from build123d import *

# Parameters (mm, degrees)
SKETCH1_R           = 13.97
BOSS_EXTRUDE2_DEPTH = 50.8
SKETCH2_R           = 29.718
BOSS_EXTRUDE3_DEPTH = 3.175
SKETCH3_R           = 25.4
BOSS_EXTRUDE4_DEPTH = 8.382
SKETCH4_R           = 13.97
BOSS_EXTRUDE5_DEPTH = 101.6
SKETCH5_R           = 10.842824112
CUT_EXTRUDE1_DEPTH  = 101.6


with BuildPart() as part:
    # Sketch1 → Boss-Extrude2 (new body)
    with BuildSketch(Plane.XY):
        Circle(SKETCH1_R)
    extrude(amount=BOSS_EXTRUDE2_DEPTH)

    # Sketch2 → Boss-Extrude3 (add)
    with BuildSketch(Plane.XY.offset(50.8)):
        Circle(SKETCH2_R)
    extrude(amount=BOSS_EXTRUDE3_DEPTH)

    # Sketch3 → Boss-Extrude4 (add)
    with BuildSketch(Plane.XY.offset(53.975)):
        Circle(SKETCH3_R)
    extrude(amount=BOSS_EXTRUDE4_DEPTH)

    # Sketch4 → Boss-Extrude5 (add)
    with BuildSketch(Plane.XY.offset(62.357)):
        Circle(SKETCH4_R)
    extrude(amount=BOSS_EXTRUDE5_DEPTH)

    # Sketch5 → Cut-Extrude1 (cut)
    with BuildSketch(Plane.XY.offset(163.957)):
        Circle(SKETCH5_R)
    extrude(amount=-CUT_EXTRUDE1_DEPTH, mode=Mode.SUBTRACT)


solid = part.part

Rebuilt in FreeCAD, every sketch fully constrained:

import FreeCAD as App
import Part
import Sketcher
from FreeCAD import Vector
Q = App.Units.Quantity

doc = App.newDocument("Part")
body = doc.addObject("PartDesign::Body", "Body")

# Sketch on XY plane
sketch1 = body.newObject("Sketcher::SketchObject", "Sketch")
sketch1.AttachmentSupport = (doc.getObject("XY_Plane"), [""])
sketch1.MapMode = "FlatFace"
sketch1.addGeometry(Part.Circle(Vector(0, 0, 0), Vector(0, 0, 1), 14), False)
sketch1.addConstraint(Sketcher.Constraint("Coincident", 0, 3, -1, 1))
sketch1.addConstraint(Sketcher.Constraint("Diameter", 0, Q("1.1 in")))
pad1 = body.newObject("PartDesign::Pad", "Pad")
pad1.Profile = sketch1
pad1.Length = Q("2 in")

# Sketch on XY plane
sketch2 = body.newObject("Sketcher::SketchObject", "Sketch001")
sketch2.AttachmentSupport = (doc.getObject("XY_Plane"), [""])
sketch2.MapMode = "FlatFace"
sketch2.AttachmentOffset = App.Placement(Vector(0, 0, 2 * 25.4), App.Rotation())
sketch2.addGeometry(Part.Circle(Vector(0, 0, 0), Vector(0, 0, 1), 30), False)
sketch2.addConstraint(Sketcher.Constraint("Coincident", 0, 3, -1, 1))
sketch2.addConstraint(Sketcher.Constraint("Diameter", 0, Q("2.34 in")))
pad2 = body.newObject("PartDesign::Pad", "Pad001")
pad2.Profile = sketch2
pad2.Length = Q("0.125 in")

# Sketch on XY plane
sketch3 = body.newObject("Sketcher::SketchObject", "Sketch002")
sketch3.AttachmentSupport = (doc.getObject("XY_Plane"), [""])
sketch3.MapMode = "FlatFace"
sketch3.AttachmentOffset = App.Placement(Vector(0, 0, 2.125 * 25.4), App.Rotation())
sketch3.addGeometry(Part.Circle(Vector(0, 0, 0), Vector(0, 0, 1), 25), False)
sketch3.addConstraint(Sketcher.Constraint("Coincident", 0, 3, -1, 1))
sketch3.addConstraint(Sketcher.Constraint("Diameter", 0, Q("2 in")))
pad3 = body.newObject("PartDesign::Pad", "Pad002")
pad3.Profile = sketch3
pad3.Length = Q("0.33 in")

# Sketch on XY plane
sketch4 = body.newObject("Sketcher::SketchObject", "Sketch003")
sketch4.AttachmentSupport = (doc.getObject("XY_Plane"), [""])
sketch4.MapMode = "FlatFace"
sketch4.AttachmentOffset = App.Placement(Vector(0, 0, 2.455 * 25.4), App.Rotation())
sketch4.addGeometry(Part.Circle(Vector(0, 0, 0), Vector(0, 0, 1), 14), False)
sketch4.addConstraint(Sketcher.Constraint("Coincident", 0, 3, -1, 1))
sketch4.addConstraint(Sketcher.Constraint("Diameter", 0, Q("1.1 in")))
pad4 = body.newObject("PartDesign::Pad", "Pad003")
pad4.Profile = sketch4
pad4.Length = Q("4 in")

# Sketch on XY plane
sketch5 = body.newObject("Sketcher::SketchObject", "Sketch004")
sketch5.AttachmentSupport = (doc.getObject("XY_Plane"), [""])
sketch5.MapMode = "FlatFace"
sketch5.AttachmentOffset = App.Placement(Vector(0, 0, 6.455 * 25.4), App.Rotation())
sketch5.addGeometry(Part.Circle(Vector(0, 0, 0), Vector(0, 0, 1), 11), False)
sketch5.addConstraint(Sketcher.Constraint("Coincident", 0, 3, -1, 1))
sketch5.addConstraint(Sketcher.Constraint("Diameter", 0, Q("21.685648 mm")))
pocket1 = body.newObject("PartDesign::Pocket", "Pocket")
pocket1.Profile = sketch5
pocket1.Length = Q("4 in")

doc.recompute()
